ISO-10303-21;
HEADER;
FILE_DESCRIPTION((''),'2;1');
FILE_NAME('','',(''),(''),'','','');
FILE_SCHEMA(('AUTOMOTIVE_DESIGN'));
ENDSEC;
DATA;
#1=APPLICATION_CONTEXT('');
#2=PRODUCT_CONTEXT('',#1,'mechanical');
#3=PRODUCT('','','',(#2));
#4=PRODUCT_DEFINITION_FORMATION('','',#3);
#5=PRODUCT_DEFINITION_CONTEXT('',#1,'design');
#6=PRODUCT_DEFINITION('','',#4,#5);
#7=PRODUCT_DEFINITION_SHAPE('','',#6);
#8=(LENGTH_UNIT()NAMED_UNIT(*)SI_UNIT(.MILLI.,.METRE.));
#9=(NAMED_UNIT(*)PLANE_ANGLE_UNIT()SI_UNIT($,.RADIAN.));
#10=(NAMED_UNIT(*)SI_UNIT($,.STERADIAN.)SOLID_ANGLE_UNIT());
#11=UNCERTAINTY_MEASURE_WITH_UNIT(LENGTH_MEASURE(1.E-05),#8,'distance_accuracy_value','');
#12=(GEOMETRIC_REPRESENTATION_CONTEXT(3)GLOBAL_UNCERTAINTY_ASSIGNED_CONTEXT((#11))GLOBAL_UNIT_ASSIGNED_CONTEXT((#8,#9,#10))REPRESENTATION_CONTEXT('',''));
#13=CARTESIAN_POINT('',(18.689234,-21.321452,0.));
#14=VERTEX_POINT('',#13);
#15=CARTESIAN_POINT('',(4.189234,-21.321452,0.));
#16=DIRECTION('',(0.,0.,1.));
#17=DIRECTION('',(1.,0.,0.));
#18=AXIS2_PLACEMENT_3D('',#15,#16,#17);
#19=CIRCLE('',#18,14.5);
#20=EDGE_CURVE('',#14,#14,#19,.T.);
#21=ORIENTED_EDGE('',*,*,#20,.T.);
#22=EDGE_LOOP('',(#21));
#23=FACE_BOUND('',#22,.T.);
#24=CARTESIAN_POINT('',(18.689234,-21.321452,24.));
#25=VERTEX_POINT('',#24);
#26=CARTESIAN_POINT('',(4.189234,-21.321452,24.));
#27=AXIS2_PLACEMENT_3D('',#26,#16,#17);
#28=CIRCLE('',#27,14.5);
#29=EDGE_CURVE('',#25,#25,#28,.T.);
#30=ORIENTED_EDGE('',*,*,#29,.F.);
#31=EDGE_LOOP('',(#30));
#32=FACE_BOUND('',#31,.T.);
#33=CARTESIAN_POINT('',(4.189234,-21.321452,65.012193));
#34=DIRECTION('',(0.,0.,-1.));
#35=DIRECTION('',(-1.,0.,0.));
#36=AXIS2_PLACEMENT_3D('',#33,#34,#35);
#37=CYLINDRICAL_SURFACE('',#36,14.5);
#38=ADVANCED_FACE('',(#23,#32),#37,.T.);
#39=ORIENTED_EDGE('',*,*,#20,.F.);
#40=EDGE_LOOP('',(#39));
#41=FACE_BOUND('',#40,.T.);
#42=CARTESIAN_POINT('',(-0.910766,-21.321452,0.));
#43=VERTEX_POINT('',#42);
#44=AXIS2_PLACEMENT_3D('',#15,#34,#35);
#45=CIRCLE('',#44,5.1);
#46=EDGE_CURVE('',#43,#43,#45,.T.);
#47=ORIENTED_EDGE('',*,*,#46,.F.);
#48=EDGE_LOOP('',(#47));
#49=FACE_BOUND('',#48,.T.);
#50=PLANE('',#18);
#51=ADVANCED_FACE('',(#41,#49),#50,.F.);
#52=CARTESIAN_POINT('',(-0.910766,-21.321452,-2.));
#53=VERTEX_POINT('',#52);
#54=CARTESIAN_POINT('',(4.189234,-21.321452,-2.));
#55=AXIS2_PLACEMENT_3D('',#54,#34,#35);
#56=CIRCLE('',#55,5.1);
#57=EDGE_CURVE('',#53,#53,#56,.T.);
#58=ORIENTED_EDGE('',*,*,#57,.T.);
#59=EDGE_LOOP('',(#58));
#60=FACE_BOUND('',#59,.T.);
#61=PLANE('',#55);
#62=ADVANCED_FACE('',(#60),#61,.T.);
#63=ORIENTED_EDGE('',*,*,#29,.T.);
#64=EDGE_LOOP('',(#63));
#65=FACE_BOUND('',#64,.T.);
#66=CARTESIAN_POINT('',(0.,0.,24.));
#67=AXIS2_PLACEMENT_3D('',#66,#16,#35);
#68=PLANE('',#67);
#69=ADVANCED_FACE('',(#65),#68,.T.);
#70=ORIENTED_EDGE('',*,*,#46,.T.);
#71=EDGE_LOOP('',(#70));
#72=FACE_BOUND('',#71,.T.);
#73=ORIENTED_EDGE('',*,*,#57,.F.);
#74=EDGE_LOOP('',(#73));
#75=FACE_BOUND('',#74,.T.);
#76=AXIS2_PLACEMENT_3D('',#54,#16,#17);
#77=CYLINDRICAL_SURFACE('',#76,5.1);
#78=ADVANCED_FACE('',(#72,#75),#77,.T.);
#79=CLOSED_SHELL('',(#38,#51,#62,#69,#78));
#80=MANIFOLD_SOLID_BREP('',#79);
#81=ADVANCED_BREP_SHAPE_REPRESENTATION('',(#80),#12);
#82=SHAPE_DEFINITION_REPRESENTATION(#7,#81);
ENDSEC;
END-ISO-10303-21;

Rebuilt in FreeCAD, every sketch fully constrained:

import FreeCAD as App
import Part
import Sketcher
Q = App.Units.Quantity

doc = App.newDocument("Part")
params = doc.addObject("Spreadsheet::Sheet", "Params")
for row, (alias, value) in enumerate([
    ("sketch1_diameter", "29 mm"),
    ("pad1_length", "24 mm"),
    ("sketch2_diameter", "10.2 mm"),
    ("pad2_length", "2 mm"),
], start=1):
    params.set(f"A{row}", alias)
    params.set(f"B{row}", "=" + value)
    params.setAlias(f"B{row}", alias)

body = doc.addObject("PartDesign::Body", "Body")

sketch1 = body.newObject("Sketcher::SketchObject", "Sketch")
sketch1.AttachmentSupport = (doc.getObject("XY_Plane"), [""])
sketch1.MapMode = "FlatFace"
sketch1.addGeometry(Part.Circle(App.Vector(4, -21, 0), App.Vector(0, 0, 1), 14), False)
sketch1.addConstraint([
    Sketcher.Constraint("Diameter", 0, Q("29 mm")),
    Sketcher.Constraint("DistanceX", -1, 1, 0, 3, Q("4.189234 mm")),
    Sketcher.Constraint("DistanceY", 0, 3, -1, 1, Q("21.321452 mm")),
])
sketch1.setExpression("Constraints[0]", "Params.sketch1_diameter")
pad1 = body.newObject("PartDesign::Pad", "Pad")
pad1.Profile = sketch1
pad1.setExpression("Length", "Params.pad1_length")

sketch2 = body.newObject("Sketcher::SketchObject", "Sketch001")
sketch2.AttachmentSupport = (doc.getObject("XY_Plane"), [""])
sketch2.MapMode = "FlatFace"
sketch2.addGeometry(Part.Circle(App.Vector(4, -21, 0), App.Vector(0, 0, 1), 5), False)
sketch2.addConstraint([
    Sketcher.Constraint("Diameter", 0, Q("10.2 mm")),
    Sketcher.Constraint("DistanceX", -1, 1, 0, 3, Q("4.189234 mm")),
    Sketcher.Constraint("DistanceY", 0, 3, -1, 1, Q("21.321452 mm")),
])
sketch2.setExpression("Constraints[0]", "Params.sketch2_diameter")
pad2 = body.newObject("PartDesign::Pad", "Pad001")
pad2.Profile = sketch2
pad2.setExpression("Length", "Params.pad2_length")
pad2.Reversed = True

doc.recompute()
